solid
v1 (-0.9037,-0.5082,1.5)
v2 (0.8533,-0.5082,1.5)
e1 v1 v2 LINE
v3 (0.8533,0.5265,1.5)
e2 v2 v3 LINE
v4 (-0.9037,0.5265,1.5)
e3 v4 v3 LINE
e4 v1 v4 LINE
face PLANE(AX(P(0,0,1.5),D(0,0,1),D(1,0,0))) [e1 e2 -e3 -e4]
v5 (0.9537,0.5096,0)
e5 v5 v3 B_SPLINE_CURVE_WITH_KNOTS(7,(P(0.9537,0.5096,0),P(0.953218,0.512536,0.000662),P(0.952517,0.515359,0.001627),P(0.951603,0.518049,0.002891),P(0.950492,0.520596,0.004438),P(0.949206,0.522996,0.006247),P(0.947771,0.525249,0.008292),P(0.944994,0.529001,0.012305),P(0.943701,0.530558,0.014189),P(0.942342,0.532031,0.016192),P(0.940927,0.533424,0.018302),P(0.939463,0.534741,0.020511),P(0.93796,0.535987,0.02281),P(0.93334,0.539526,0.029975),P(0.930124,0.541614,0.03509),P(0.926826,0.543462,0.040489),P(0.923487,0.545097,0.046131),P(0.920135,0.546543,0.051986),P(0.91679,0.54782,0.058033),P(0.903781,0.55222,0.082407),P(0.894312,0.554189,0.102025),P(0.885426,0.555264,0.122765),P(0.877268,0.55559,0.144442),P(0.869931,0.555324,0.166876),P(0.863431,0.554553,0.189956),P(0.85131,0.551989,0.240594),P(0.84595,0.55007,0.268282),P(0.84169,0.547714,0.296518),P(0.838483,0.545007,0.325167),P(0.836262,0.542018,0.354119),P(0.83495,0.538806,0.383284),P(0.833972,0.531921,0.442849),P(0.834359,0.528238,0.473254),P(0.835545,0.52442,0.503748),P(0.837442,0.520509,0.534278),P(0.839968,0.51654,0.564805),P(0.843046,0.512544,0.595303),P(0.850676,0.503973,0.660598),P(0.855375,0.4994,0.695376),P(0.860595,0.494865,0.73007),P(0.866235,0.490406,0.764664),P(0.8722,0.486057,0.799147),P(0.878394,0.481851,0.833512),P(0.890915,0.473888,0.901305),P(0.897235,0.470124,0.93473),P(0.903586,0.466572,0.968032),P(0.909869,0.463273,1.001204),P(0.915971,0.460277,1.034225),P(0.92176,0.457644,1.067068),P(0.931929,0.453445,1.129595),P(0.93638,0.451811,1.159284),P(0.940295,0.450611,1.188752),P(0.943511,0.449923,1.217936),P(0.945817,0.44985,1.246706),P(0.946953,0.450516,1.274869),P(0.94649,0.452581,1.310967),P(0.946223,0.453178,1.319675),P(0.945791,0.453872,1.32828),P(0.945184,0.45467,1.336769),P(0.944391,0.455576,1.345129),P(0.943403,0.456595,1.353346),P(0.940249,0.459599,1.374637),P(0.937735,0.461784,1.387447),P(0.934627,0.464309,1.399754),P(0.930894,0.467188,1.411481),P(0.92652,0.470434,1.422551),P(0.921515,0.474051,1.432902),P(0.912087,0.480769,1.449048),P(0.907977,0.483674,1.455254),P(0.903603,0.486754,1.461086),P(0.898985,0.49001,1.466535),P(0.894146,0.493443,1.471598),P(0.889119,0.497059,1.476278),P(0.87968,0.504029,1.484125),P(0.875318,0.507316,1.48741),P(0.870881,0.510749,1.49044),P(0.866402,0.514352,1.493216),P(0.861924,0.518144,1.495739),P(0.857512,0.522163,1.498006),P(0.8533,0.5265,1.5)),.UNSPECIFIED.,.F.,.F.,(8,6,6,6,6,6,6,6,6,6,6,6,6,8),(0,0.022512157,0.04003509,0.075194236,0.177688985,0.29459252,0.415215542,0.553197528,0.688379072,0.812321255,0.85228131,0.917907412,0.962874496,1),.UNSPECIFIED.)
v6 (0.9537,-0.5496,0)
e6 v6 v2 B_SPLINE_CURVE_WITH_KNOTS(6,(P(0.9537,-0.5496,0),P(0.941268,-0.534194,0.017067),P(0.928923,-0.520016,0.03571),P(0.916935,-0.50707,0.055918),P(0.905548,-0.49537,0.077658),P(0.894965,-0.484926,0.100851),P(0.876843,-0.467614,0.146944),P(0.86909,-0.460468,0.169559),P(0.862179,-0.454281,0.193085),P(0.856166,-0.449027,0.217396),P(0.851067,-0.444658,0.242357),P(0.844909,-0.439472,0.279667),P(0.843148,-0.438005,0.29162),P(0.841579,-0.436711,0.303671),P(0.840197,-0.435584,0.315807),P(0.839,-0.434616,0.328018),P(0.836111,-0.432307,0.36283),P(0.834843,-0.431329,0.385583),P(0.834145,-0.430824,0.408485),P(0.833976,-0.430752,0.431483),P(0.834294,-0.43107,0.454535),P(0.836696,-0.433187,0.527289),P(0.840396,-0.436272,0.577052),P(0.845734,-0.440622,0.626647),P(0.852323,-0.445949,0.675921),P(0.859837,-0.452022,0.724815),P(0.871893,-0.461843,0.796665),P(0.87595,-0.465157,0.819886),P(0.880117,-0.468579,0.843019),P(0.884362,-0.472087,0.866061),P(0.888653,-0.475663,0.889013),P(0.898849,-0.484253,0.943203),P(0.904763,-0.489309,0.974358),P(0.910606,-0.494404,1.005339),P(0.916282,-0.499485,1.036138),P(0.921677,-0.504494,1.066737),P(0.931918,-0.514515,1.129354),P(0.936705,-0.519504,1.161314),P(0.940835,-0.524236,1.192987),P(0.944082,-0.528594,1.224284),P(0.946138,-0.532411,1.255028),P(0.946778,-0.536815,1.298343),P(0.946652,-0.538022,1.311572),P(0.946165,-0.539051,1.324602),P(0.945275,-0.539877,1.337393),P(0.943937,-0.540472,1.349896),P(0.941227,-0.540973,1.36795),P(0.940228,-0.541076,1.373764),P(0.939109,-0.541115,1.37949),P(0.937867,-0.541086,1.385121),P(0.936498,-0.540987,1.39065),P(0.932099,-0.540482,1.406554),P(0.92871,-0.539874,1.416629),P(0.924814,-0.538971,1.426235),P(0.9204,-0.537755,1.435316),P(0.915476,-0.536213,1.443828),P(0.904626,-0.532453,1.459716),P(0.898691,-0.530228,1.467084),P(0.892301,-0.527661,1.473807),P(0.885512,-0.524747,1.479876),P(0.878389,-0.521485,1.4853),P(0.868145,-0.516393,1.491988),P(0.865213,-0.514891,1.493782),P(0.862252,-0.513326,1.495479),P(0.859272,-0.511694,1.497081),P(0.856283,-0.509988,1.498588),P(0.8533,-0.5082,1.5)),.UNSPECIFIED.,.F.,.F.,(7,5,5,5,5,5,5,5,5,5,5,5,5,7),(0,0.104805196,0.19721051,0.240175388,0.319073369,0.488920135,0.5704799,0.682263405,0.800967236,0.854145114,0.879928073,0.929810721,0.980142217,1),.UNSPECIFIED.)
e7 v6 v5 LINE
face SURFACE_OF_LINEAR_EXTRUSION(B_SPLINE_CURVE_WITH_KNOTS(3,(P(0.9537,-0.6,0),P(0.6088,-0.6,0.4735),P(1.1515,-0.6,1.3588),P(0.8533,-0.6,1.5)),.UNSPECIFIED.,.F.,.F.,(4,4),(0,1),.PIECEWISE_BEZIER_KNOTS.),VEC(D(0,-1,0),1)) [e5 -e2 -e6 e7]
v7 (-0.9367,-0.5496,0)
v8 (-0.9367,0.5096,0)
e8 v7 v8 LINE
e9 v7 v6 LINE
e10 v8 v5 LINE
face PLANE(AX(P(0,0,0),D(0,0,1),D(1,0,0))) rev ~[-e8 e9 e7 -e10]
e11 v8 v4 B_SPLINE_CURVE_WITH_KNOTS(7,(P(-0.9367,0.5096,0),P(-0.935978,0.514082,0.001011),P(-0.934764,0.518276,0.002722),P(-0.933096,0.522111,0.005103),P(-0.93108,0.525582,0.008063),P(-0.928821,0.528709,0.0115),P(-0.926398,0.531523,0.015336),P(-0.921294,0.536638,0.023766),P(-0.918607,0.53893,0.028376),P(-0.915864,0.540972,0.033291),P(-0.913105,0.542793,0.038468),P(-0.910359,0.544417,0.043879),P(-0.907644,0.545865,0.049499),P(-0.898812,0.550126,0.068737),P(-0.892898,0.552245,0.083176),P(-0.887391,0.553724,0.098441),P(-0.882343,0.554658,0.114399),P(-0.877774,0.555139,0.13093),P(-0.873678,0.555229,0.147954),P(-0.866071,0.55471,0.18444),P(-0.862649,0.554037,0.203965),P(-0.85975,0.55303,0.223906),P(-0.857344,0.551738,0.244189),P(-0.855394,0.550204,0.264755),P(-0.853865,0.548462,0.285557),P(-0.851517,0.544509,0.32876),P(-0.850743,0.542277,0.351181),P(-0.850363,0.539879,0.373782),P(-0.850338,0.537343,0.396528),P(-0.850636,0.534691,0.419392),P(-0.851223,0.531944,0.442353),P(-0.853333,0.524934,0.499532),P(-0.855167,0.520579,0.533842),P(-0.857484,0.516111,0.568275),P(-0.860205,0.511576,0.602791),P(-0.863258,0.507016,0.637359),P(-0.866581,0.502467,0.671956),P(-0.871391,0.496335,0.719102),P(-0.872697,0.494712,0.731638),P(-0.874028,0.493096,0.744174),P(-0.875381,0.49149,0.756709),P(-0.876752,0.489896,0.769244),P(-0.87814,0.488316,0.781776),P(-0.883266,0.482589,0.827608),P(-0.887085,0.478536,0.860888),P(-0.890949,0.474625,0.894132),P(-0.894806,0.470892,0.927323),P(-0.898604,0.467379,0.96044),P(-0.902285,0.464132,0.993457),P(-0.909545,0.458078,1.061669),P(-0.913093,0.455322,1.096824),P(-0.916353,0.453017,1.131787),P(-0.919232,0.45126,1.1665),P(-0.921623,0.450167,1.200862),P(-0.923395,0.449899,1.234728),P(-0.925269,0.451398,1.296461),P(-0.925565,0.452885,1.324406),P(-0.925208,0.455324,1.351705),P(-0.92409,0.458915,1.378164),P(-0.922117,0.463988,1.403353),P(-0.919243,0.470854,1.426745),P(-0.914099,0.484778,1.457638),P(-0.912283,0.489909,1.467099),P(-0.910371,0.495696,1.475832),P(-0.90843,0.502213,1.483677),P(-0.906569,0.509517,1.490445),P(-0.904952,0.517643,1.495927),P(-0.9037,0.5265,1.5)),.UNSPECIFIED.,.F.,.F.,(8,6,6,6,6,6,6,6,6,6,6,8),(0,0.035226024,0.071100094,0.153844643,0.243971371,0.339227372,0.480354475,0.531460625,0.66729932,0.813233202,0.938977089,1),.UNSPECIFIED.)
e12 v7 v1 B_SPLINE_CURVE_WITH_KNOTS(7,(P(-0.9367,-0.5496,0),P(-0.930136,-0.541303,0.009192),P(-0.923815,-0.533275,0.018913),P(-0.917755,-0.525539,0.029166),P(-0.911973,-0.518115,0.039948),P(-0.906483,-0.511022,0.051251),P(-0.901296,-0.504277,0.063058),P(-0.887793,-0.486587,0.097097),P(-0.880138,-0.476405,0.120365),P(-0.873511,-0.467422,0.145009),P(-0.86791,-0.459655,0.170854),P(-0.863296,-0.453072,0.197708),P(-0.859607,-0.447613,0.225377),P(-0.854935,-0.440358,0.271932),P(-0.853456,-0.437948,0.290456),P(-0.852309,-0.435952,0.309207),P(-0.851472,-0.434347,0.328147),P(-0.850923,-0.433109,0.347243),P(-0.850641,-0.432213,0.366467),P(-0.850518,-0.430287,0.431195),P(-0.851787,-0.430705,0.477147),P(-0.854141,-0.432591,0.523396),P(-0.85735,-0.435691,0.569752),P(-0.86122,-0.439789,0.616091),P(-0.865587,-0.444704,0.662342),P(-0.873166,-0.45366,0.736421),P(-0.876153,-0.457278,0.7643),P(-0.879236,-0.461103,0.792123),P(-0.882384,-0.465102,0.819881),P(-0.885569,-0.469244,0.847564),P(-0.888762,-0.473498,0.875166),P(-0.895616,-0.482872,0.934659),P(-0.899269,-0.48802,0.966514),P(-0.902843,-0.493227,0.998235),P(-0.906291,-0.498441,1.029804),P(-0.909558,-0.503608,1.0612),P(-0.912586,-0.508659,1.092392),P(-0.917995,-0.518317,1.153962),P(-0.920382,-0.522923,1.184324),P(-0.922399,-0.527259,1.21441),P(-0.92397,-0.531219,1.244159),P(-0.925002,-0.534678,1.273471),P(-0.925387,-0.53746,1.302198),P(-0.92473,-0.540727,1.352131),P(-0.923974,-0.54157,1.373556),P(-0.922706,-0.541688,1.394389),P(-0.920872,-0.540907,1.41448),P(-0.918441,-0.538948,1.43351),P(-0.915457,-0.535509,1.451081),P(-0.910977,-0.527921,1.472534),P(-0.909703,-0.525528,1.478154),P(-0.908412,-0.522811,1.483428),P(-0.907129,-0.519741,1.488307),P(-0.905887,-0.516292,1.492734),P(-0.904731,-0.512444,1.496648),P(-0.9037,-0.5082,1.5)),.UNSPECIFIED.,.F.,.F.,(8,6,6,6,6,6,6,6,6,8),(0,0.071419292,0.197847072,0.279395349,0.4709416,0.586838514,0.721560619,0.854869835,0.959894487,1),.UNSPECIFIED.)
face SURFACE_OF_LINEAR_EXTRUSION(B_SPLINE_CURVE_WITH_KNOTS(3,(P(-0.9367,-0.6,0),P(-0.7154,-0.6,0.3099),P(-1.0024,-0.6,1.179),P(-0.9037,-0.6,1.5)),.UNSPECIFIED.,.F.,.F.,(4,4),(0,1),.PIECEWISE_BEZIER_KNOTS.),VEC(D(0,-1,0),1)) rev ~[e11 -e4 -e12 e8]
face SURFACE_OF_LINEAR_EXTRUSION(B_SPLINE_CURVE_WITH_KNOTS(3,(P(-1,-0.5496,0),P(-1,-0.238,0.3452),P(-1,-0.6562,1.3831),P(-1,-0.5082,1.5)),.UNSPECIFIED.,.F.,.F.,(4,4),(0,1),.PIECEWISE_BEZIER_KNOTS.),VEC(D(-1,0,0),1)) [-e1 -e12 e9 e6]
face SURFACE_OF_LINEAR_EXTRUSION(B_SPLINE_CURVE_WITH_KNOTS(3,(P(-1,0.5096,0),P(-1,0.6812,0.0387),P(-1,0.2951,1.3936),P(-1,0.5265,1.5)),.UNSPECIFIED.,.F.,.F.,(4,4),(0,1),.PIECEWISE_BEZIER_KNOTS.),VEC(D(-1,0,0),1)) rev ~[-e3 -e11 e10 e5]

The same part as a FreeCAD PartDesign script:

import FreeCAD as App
import Part
import Sketcher


def add_polygon(sketch, points):
    """Adds a closed chain of lines whose ends are joined by coincident constraints."""
    first, n = sketch.GeometryCount, len(points)
    for a, b in zip(points, points[1:] + points[:1]):
        sketch.addGeometry(Part.LineSegment(App.Vector(*a, 0), App.Vector(*b, 0)), False)
    for i in range(n):
        sketch.addConstraint(Sketcher.Constraint("Coincident", first + i, 2, first + (i + 1) % n, 1))

doc = App.newDocument("Part")
body = doc.addObject("PartDesign::Body", "Body")

sketch1 = doc.addObject("Sketcher::SketchObject", "Sketch")
body.addObject(sketch1)
sketch1.AttachmentSupport = (doc.XY_Plane, [""])
sketch1.MapMode = "FlatFace"
add_polygon(sketch1, [(-1, 0.6), (-1, -0.6), (1, -0.6), (1, 0.6)])
sketch1.addConstraint([
    Sketcher.Constraint("Vertical", 0),
    Sketcher.Constraint("Horizontal", 1),
    Sketcher.Constraint("Vertical", 2),
    Sketcher.Constraint("Horizontal", 3),
    Sketcher.Constraint("Symmetric", 0, 2, 2, 2, -1, 1),
    Sketcher.Constraint("DistanceX", 1, 1, 1, 2, 2.0),
    Sketcher.Constraint("DistanceY", 0, 2, 0, 1, 1.2),
])
pad1 = doc.addObject("PartDesign::Pad", "Pad")
body.addObject(pad1)
pad1.Profile = sketch1
pad1.Length = 1.5

sketch2 = doc.addObject("Sketcher::SketchObject", "Sketch001")
body.addObject(sketch2)
sketch2.AttachmentSupport = (doc.XZ_Plane, [""])
sketch2.MapMode = "FlatFace"
sketch2.AttachmentOffset = App.Placement(App.Vector(0, 0, 0.6), App.Rotation())
sketch2.addGeometry([
    Part.LineSegment(App.Vector(1, 0, 0), App.Vector(1, 1.5, 0)),
    Part.LineSegment(App.Vector(1, 1.5, 0), App.Vector(0.8533, 1.5, 0)),
    Part.BSplineCurve([App.Vector(0.9537, 0, 0), App.Vector(0.6088, 0.4735, 0), App.Vector(1.1515, 1.3588, 0), App.Vector(0.8533, 1.5, 0)], [4, 4], [0, 1], False, 3, [1, 1, 1, 1], False),
    Part.LineSegment(App.Vector(0.9537, 0, 0), App.Vector(1, 0, 0)),
    Part.BSplineCurve([App.Vector(-0.9367, 0, 0), App.Vector(-0.7154, 0.3099, 0), App.Vector(-1.0024, 1.179, 0), App.Vector(-0.9037, 1.5, 0)], [4, 4], [0, 1], False, 3, [1, 1, 1, 1], False),
    Part.LineSegment(App.Vector(-0.9037, 1.5, 0), App.Vector(-1, 1.5, 0)),
    Part.LineSegment(App.Vector(-1, 1.5, 0), App.Vector(-1, 0, 0)),
    Part.LineSegment(App.Vector(-1, 0, 0), App.Vector(-0.9367, 0, 0)),
], False)
sketch2.addConstraint([
    Sketcher.Constraint("Block", 2),
    Sketcher.Constraint("Block", 4),
    Sketcher.Constraint("Coincident", 0, 2, 1, 1),
    Sketcher.Constraint("Coincident", 1, 2, 2, 2),
    Sketcher.Constraint("Coincident", 2, 1, 3, 1),
    Sketcher.Constraint("Coincident", 3, 2, 0, 1),
    Sketcher.Constraint("Coincident", 4, 2, 5, 1),
    Sketcher.Constraint("Coincident", 5, 2, 6, 1),
    Sketcher.Constraint("Coincident", 6, 2, 7, 1),
    Sketcher.Constraint("Coincident", 7, 2, 4, 1),
    Sketcher.Constraint("Vertical", 0),
    Sketcher.Constraint("Horizontal", 1),
    Sketcher.Constraint("Horizontal", 3),
    Sketcher.Constraint("Horizontal", 5),
    Sketcher.Constraint("Vertical", 6),
    Sketcher.Constraint("Horizontal", 7),
    Sketcher.Constraint("DistanceX", -1, 1, 0, 2, 1.0),
    Sketcher.Constraint("DistanceX", 5, 2, -1, 1, 1.0),
])
pocket1 = doc.addObject("PartDesign::Pocket", "Pocket")
body.addObject(pocket1)
pocket1.Profile = sketch2
pocket1.Type = "ThroughAll"

sketch3 = doc.addObject("Sketcher::SketchObject", "Sketch002")
body.addObject(sketch3)
sketch3.AttachmentSupport = (doc.YZ_Plane, [""])
sketch3.MapMode = "FlatFace"
sketch3.AttachmentOffset = App.Placement(App.Vector(0, 0, -1), App.Rotation())
sketch3.addGeometry([
    Part.LineSegment(App.Vector(0.6, 1.5, 0), App.Vector(0.6, 0, 0)),
    Part.LineSegment(App.Vector(0.6, 0, 0), App.Vector(0.5096, 0, 0)),
    Part.BSplineCurve([App.Vector(0.5096, 0, 0), App.Vector(0.6812, 0.0387, 0), App.Vector(0.2951, 1.3936, 0), App.Vector(0.5265, 1.5, 0)], [4, 4], [0, 1], False, 3, [1, 1, 1, 1], False),
    Part.LineSegment(App.Vector(0.5265, 1.5, 0), App.Vector(0.6, 1.5, 0)),
    Part.BSplineCurve([App.Vector(-0.5496, 0, 0), App.Vector(-0.238, 0.3452, 0), App.Vector(-0.6562, 1.3831, 0), App.Vector(-0.5082, 1.5, 0)], [4, 4], [0, 1], False, 3, [1, 1, 1, 1], False),
    Part.LineSegment(App.Vector(-0.5496, 0, 0), App.Vector(-0.6, 0, 0)),
    Part.LineSegment(App.Vector(-0.6, 0, 0), App.Vector(-0.6, 1.5, 0)),
    Part.LineSegment(App.Vector(-0.6, 1.5, 0), App.Vector(-0.5082, 1.5, 0)),
], False)
sketch3.addConstraint([
    Sketcher.Constraint("Block", 2),
    Sketcher.Constraint("Block", 4),
    Sketcher.Constraint("Coincident", 0, 2, 1, 1),
    Sketcher.Constraint("Coincident", 1, 2, 2, 1),
    Sketcher.Constraint("Coincident", 2, 2, 3, 1),
    Sketcher.Constraint("Coincident", 3, 2, 0, 1),
    Sketcher.Constraint("Coincident", 4, 1, 5, 1),
    Sketcher.Constraint("Coincident", 5, 2, 6, 1),
    Sketcher.Constraint("Coincident", 6, 2, 7, 1),
    Sketcher.Constraint("Coincident", 7, 2, 4, 2),
    Sketcher.Constraint("Vertical", 0),
    Sketcher.Constraint("Horizontal", 1),
    Sketcher.Constraint("Horizontal", 3),
    Sketcher.Constraint("Horizontal", 5),
    Sketcher.Constraint("Vertical", 6),
    Sketcher.Constraint("Horizontal", 7),
    Sketcher.Constraint("DistanceX", -1, 1, 0, 2, 0.6),
    Sketcher.Constraint("DistanceX", 5, 2, -1, 1, 0.6),
])
pocket2 = doc.addObject("PartDesign::Pocket", "Pocket001")
body.addObject(pocket2)
pocket2.Profile = sketch3
pocket2.Type = "ThroughAll"
pocket2.Reversed = True

doc.recompute()
